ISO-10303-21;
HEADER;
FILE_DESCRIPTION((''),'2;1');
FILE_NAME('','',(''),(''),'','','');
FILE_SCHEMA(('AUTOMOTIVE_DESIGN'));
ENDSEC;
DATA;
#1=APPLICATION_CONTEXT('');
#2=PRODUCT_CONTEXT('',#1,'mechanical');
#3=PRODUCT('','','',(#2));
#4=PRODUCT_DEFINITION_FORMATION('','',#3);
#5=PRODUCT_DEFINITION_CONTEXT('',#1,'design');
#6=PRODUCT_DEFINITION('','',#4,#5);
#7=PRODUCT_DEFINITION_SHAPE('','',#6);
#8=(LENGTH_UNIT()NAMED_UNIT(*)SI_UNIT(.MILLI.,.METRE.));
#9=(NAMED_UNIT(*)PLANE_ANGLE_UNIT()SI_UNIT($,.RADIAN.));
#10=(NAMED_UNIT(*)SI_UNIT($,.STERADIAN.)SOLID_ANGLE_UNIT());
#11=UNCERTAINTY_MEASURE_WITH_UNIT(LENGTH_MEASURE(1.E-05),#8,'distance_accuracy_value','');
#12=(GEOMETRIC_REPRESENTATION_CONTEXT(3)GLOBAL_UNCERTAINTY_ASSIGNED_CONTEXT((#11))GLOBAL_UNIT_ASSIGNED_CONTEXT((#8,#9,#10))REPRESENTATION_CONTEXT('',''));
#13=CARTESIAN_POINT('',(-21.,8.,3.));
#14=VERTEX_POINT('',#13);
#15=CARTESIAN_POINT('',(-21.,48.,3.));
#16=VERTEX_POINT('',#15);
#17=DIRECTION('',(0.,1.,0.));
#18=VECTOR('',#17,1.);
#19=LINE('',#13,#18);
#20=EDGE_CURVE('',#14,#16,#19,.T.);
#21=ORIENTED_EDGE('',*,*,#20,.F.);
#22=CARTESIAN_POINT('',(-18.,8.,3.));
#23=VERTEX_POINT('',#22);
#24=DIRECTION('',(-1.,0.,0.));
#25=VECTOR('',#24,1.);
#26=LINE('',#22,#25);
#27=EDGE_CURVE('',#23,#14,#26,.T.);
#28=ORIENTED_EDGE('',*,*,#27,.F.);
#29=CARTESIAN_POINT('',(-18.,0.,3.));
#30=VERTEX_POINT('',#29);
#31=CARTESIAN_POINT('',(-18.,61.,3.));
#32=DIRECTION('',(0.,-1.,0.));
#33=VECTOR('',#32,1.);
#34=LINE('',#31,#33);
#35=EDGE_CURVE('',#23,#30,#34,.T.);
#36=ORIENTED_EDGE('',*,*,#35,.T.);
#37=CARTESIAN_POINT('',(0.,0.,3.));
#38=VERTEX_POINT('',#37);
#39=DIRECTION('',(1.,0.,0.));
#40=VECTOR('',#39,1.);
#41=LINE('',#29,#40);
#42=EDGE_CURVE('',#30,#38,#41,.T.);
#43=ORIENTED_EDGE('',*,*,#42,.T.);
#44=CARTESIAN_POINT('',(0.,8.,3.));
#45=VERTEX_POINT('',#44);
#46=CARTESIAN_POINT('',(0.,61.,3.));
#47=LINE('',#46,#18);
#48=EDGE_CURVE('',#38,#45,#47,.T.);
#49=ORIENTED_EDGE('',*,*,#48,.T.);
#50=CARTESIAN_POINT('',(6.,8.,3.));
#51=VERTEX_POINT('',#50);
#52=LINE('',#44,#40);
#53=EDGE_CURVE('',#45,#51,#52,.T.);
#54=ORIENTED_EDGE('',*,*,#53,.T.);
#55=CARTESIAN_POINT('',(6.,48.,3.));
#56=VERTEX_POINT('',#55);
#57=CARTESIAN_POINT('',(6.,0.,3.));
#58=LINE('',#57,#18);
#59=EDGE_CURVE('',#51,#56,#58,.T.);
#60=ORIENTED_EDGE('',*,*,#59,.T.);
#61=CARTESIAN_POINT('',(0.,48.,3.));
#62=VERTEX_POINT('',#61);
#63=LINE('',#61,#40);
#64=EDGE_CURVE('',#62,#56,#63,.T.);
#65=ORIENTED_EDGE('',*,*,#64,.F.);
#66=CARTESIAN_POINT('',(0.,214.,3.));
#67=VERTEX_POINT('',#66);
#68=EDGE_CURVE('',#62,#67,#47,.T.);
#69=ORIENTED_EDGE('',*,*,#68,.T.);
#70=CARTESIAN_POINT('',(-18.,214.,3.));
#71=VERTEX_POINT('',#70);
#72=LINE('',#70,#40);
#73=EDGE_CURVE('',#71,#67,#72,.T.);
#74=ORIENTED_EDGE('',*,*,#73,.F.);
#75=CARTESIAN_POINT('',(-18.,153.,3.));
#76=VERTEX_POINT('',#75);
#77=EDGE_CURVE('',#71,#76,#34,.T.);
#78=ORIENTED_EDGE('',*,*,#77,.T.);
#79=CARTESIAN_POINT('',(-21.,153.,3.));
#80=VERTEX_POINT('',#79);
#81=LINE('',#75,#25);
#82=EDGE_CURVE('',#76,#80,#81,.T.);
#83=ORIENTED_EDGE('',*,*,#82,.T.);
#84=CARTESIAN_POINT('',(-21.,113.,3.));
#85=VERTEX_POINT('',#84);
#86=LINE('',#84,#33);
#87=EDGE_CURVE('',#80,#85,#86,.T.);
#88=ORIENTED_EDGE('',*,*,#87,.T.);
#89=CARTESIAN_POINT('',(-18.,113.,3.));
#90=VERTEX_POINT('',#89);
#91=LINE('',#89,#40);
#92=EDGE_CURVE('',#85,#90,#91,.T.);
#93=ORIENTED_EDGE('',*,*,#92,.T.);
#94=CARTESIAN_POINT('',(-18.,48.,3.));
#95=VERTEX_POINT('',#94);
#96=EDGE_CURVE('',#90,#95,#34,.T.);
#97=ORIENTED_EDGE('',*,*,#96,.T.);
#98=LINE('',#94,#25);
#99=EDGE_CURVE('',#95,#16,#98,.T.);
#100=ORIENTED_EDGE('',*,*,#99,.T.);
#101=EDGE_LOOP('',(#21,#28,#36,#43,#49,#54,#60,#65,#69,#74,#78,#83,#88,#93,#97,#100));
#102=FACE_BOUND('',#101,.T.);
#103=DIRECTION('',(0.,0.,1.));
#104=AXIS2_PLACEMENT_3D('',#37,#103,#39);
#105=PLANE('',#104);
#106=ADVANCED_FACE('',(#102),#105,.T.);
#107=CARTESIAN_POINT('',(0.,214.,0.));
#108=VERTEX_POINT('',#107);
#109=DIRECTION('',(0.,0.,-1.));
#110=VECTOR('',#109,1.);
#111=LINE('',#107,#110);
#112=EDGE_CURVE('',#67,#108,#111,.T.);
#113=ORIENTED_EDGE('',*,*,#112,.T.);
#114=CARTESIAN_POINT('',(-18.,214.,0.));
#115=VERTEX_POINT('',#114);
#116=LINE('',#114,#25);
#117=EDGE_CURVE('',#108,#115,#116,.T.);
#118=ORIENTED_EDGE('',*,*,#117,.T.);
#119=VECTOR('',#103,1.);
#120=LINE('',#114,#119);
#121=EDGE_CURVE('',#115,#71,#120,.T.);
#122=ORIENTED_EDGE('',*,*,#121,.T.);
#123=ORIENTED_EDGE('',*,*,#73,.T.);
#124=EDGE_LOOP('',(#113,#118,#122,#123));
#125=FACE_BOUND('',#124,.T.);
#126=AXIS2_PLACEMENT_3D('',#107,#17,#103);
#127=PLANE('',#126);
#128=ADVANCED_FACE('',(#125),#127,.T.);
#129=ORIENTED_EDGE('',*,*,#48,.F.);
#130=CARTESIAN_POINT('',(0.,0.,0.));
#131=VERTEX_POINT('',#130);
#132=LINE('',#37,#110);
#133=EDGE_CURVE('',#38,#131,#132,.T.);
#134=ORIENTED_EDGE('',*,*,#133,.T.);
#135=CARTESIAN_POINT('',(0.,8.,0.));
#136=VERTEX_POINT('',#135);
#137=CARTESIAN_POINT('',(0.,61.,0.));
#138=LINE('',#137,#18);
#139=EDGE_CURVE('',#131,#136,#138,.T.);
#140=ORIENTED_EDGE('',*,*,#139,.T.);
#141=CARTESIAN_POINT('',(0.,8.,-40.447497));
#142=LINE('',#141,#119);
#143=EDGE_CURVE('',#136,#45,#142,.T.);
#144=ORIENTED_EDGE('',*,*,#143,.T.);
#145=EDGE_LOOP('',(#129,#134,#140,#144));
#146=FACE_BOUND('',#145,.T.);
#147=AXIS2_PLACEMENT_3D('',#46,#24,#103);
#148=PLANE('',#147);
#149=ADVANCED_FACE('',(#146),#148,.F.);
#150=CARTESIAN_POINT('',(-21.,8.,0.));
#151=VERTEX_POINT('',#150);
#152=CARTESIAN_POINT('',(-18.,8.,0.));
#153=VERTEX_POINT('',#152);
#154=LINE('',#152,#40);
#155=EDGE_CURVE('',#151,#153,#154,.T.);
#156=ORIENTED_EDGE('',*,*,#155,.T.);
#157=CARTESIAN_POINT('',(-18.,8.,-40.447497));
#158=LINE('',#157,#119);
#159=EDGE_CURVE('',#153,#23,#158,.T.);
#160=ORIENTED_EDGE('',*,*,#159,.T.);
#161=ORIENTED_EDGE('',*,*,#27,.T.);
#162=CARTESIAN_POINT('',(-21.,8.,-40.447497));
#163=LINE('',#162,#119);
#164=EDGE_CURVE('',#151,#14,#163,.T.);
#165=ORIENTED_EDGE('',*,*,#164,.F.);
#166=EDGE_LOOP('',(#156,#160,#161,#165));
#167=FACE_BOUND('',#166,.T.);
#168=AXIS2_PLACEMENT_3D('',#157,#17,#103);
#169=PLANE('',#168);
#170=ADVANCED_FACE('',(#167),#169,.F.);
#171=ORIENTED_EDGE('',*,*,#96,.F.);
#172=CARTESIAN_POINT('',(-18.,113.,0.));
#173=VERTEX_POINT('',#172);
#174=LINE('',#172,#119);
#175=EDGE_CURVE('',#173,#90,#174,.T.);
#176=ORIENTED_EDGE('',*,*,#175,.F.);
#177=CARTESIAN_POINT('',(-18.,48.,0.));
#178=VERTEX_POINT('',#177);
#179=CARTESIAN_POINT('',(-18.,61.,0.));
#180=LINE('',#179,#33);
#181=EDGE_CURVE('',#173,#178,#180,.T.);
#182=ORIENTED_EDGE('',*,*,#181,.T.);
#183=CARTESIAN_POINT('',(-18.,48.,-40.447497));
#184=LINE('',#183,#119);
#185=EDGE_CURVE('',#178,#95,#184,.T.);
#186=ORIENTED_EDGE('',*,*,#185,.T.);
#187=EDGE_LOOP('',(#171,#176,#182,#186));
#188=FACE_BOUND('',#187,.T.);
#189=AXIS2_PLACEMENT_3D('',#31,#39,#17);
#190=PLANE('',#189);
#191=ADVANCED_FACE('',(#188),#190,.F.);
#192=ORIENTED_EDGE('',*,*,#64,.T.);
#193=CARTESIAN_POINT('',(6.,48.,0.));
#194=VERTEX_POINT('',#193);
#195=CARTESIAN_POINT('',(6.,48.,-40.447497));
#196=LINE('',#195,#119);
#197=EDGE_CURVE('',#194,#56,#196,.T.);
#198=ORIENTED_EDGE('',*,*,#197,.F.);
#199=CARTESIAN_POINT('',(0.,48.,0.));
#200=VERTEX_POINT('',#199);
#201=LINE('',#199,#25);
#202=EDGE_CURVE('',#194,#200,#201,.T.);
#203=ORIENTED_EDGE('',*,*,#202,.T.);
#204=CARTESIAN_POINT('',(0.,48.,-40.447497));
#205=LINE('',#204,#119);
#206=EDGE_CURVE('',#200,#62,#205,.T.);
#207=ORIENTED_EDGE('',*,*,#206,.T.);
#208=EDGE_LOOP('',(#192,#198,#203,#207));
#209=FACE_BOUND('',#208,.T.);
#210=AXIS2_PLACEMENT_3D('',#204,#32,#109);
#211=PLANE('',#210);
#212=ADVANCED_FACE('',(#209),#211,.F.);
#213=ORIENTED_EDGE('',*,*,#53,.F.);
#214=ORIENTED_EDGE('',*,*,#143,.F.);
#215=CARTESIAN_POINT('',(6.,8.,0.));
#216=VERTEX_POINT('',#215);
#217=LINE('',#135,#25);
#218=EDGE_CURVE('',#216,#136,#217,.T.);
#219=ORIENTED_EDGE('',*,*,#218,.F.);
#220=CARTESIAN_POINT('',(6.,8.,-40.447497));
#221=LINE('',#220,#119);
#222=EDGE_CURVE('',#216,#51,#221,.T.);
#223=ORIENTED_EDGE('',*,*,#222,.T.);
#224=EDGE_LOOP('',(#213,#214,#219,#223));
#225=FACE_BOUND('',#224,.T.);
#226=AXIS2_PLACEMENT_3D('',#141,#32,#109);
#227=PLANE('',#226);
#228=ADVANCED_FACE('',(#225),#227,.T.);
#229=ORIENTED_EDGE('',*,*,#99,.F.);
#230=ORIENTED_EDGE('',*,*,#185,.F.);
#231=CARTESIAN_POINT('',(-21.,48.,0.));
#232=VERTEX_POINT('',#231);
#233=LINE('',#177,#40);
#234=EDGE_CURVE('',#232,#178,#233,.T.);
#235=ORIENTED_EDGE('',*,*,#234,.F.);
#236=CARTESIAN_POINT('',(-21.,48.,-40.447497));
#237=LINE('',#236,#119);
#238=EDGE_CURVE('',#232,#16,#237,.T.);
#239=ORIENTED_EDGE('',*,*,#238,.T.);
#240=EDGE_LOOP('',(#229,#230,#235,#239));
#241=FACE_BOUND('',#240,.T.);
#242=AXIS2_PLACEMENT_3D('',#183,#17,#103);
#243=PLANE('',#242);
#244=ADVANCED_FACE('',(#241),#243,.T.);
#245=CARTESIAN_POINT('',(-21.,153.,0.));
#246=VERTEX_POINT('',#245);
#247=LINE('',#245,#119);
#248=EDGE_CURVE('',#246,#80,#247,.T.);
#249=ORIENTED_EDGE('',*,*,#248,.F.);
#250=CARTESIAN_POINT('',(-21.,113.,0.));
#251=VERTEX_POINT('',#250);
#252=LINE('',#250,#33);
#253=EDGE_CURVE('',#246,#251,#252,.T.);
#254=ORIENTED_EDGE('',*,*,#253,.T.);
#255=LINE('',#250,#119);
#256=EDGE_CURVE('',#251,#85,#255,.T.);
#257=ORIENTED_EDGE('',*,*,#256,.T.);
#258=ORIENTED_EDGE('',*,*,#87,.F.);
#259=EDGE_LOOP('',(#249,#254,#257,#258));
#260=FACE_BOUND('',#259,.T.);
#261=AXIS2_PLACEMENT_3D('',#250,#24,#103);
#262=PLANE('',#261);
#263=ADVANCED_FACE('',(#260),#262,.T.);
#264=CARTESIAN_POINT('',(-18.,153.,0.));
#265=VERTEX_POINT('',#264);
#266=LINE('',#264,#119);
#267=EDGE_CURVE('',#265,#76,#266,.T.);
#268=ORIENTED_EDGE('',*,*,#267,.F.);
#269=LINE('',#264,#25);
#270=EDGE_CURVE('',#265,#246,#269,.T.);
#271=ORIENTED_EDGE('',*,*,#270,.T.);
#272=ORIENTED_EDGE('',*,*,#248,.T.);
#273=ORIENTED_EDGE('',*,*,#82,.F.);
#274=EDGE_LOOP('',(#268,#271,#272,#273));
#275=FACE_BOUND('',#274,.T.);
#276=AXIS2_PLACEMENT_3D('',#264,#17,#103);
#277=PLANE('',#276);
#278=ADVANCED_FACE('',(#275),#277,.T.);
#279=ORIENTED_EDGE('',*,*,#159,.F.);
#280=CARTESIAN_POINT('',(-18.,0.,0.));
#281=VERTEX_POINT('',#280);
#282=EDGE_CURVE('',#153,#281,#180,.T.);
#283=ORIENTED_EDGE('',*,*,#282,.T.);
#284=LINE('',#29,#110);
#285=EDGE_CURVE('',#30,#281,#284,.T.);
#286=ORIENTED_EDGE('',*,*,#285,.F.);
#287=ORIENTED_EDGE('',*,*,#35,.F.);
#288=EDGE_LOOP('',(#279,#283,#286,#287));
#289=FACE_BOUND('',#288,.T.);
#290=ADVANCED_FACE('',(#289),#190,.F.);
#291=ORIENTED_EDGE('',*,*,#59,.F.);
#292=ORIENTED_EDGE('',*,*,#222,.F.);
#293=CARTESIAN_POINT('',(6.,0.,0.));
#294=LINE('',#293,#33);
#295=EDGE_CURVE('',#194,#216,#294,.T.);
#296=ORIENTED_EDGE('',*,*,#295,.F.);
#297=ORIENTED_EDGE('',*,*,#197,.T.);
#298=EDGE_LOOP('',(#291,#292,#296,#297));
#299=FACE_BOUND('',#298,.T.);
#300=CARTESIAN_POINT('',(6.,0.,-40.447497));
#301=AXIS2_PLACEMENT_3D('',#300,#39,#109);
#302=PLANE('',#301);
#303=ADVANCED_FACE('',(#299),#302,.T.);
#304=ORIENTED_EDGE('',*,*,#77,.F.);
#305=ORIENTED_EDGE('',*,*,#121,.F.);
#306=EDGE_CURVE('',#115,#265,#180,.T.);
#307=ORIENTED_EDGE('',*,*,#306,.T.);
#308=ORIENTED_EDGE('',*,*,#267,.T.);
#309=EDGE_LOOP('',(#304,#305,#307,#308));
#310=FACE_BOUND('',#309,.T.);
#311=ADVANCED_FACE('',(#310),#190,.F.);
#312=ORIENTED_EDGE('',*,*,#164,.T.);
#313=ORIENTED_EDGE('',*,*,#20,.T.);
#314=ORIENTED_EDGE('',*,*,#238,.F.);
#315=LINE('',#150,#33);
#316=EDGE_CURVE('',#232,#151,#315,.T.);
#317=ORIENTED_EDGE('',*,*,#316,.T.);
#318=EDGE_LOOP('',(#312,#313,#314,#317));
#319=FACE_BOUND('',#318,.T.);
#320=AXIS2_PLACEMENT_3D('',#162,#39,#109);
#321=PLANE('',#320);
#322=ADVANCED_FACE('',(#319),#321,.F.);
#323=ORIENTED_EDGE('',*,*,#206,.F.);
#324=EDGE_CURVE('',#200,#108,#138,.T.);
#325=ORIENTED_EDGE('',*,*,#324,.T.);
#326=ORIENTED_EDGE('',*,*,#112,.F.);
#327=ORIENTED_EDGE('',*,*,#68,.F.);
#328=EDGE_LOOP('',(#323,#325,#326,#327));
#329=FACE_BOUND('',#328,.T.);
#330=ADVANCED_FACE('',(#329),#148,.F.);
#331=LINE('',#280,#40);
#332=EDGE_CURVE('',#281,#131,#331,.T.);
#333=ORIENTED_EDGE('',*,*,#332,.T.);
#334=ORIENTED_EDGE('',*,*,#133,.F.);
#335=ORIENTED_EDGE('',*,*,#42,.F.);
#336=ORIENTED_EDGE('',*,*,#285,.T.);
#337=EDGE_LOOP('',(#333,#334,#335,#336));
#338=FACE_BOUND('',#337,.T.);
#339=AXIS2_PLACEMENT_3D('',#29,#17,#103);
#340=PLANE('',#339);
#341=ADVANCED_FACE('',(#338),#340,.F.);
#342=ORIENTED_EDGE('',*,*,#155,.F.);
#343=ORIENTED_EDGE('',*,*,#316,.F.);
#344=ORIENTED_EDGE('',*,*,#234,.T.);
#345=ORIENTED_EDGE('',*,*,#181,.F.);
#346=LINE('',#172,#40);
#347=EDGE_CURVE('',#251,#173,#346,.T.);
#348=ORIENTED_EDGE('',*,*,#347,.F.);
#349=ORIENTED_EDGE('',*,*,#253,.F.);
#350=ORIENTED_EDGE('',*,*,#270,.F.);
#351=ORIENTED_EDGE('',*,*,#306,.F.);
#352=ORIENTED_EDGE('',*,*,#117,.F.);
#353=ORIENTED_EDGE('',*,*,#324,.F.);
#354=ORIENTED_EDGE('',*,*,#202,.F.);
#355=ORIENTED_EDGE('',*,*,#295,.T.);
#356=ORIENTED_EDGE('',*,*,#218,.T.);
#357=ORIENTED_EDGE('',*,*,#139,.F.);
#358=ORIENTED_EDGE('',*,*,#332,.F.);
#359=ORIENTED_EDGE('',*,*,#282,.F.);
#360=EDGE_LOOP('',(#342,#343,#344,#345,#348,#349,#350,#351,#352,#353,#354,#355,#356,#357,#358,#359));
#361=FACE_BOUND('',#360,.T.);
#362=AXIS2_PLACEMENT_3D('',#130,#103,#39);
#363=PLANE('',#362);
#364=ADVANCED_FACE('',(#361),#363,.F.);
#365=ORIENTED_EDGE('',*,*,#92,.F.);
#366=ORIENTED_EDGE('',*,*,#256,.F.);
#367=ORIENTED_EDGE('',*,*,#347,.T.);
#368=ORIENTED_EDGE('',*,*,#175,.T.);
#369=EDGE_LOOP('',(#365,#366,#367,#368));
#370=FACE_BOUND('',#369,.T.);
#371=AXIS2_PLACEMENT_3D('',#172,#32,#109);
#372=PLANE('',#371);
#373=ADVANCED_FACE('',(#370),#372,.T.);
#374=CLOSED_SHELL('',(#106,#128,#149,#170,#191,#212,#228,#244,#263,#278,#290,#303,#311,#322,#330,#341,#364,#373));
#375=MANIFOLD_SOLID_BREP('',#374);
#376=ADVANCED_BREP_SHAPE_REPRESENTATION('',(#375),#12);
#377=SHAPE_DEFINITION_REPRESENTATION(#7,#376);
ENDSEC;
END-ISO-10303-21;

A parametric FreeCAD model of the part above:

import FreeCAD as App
import Part
import Sketcher
from FreeCAD import Vector


def add_polygon(sketch, points):
    """Adds a closed chain of lines whose ends are joined by coincident constraints."""
    first, n = sketch.GeometryCount, len(points)
    for a, b in zip(points, points[1:] + points[:1]):
        sketch.addGeometry(Part.LineSegment(App.Vector(*a, 0), App.Vector(*b, 0)), False)
    for i in range(n):
        sketch.addConstraint(Sketcher.Constraint("Coincident", first + i, 2, first + (i + 1) % n, 1))

doc = App.newDocument("Part")
params = doc.addObject("Spreadsheet::Sheet", "Params")
for row, (alias, value) in enumerate([
    ("sketch1_width", "18 mm"),
    ("sketch1_height", "61 mm"),
    ("pad1_length", "3 mm"),
    ("sketch2_width", "6 mm"),
    ("sketch2_width2", "3 mm"),
    ("sketch2_height", "40 mm"),
    ("pad2_length", "3 mm"),
    ("sketch3_width", "18 mm"),
    ("sketch3_height", "3 mm"),
    ("pad3_length", "153 mm"),
    ("sketch4_width", "3 mm"),
    ("sketch4_height", "40 mm"),
    ("pad4_length", "3 mm"),
], start=1):
    params.set(f"A{row}", alias)
    params.set(f"B{row}", "=" + value)
    params.setAlias(f"B{row}", alias)

body = doc.addObject("PartDesign::Body", "Body")

sketch1 = body.newObject("Sketcher::SketchObject", "Sketch")
sketch1.AttachmentSupport = (doc.getObject("XY_Plane"), [""])
sketch1.MapMode = "FlatFace"
add_polygon(sketch1, [(-18, 61), (-18, 0), (0, 0), (0, 61)])
sketch1.addConstraint(Sketcher.Constraint("Vertical", 0))
sketch1.addConstraint(Sketcher.Constraint("Horizontal", 1))
sketch1.addConstraint(Sketcher.Constraint("Vertical", 2))
sketch1.addConstraint(Sketcher.Constraint("Horizontal", 3))
sketch1.addConstraint(Sketcher.Constraint("Coincident", 1, 2, -1, 1))
sketch1.addConstraint(Sketcher.Constraint("DistanceX", 1, 1, 1, 2, 18.0))
sketch1.addConstraint(Sketcher.Constraint("DistanceY", 0, 2, 0, 1, 61.0))
sketch1.setExpression("Constraints[9]", "Params.sketch1_width")
sketch1.setExpression("Constraints[10]", "Params.sketch1_height")
pad1 = body.newObject("PartDesign::Pad", "Pad")
pad1.Profile = sketch1
pad1.setExpression("Length", "Params.pad1_length")

sketch2 = body.newObject("Sketcher::SketchObject", "Sketch001")
sketch2.AttachmentSupport = (doc.getObject("XY_Plane"), [""])
sketch2.MapMode = "FlatFace"
sketch2.AttachmentOffset = App.Placement(Vector(0, 0, 3), App.Rotation())
add_polygon(sketch2, [(0, 48), (0, 8), (6, 8), (6, 48)])
add_polygon(sketch2, [(-21, 48), (-21, 8), (-18, 8), (-18, 48)])
sketch2.addConstraint(Sketcher.Constraint("Vertical", 0))
sketch2.addConstraint(Sketcher.Constraint("Horizontal", 1))
sketch2.addConstraint(Sketcher.Constraint("Vertical", 2))
sketch2.addConstraint(Sketcher.Constraint("Horizontal", 3))
sketch2.addConstraint(Sketcher.Constraint("Vertical", 4))
sketch2.addConstraint(Sketcher.Constraint("Horizontal", 5))
sketch2.addConstraint(Sketcher.Constraint("Vertical", 6))
sketch2.addConstraint(Sketcher.Constraint("Horizontal", 7))
sketch2.addConstraint(Sketcher.Constraint("PointOnObject", 0, 2, -2))
sketch2.addConstraint(Sketcher.Constraint("Horizontal", 1, 2, 4, 2))
sketch2.addConstraint(Sketcher.Constraint("Horizontal", 3, 2, 6, 2))
sketch2.addConstraint(Sketcher.Constraint("DistanceX", 1, 1, 1, 2, 6.0))
sketch2.addConstraint(Sketcher.Constraint("DistanceX", 5, 1, 5, 2, 3.0))
sketch2.addConstraint(Sketcher.Constraint("DistanceY", 0, 2, 0, 1, 40.0))
sketch2.addConstraint(Sketcher.Constraint("DistanceY", -1, 1, 0, 2, 8.0))
sketch2.addConstraint(Sketcher.Constraint("DistanceX", 4, 2, -1, 1, 21.0))
sketch2.setExpression("Constraints[19]", "Params.sketch2_width")
sketch2.setExpression("Constraints[20]", "Params.sketch2_width2")
sketch2.setExpression("Constraints[21]", "Params.sketch2_height")
pad2 = body.newObject("PartDesign::Pad", "Pad001")
pad2.Profile = sketch2
pad2.setExpression("Length", "Params.pad2_length")
pad2.Reversed = True

sketch3 = body.newObject("Sketcher::SketchObject", "Sketch002")
sketch3.AttachmentSupport = (doc.getObject("XZ_Plane"), [""])
sketch3.MapMode = "FlatFace"
sketch3.AttachmentOffset = App.Placement(Vector(0, 0, -61), App.Rotation())
add_polygon(sketch3, [(-18, 0), (-18, 3), (0, 3), (0, 0)])
sketch3.addConstraint(Sketcher.Constraint("Vertical", 0))
sketch3.addConstraint(Sketcher.Constraint("Horizontal", 1))
sketch3.addConstraint(Sketcher.Constraint("Vertical", 2))
sketch3.addConstraint(Sketcher.Constraint("Horizontal", 3))
sketch3.addConstraint(Sketcher.Constraint("Coincident", 2, 2, -1, 1))
sketch3.addConstraint(Sketcher.Constraint("DistanceX", 1, 1, 1, 2, 18.0))
sketch3.addConstraint(Sketcher.Constraint("DistanceY", 0, 1, 0, 2, 3.0))
sketch3.setExpression("Constraints[9]", "Params.sketch3_width")
sketch3.setExpression("Constraints[10]", "Params.sketch3_height")
pad3 = body.newObject("PartDesign::Pad", "Pad002")
pad3.Profile = sketch3
pad3.setExpression("Length", "Params.pad3_length")
pad3.Reversed = True

sketch4 = body.newObject("Sketcher::SketchObject", "Sketch003")
sketch4.AttachmentSupport = (doc.getObject("XY_Plane"), [""])
sketch4.MapMode = "FlatFace"
sketch4.AttachmentOffset = App.Placement(Vector(0, 0, 3), App.Rotation())
add_polygon(sketch4, [(-21, 153), (-21, 113), (-18, 113), (-18, 153)])
sketch4.addConstraint(Sketcher.Constraint("Vertical", 0))
sketch4.addConstraint(Sketcher.Constraint("Horizontal", 1))
sketch4.addConstraint(Sketcher.Constraint("Vertical", 2))
sketch4.addConstraint(Sketcher.Constraint("Horizontal", 3))
sketch4.addConstraint(Sketcher.Constraint("DistanceX", 1, 1, 1, 2, 3.0))
sketch4.addConstraint(Sketcher.Constraint("DistanceY", 0, 2, 0, 1, 40.0))
sketch4.addConstraint(Sketcher.Constraint("DistanceX", 0, 2, -1, 1, 21.0))
sketch4.addConstraint(Sketcher.Constraint("DistanceY", -1, 1, 0, 2, 113.0))
sketch4.setExpression("Constraints[8]", "Params.sketch4_width")
sketch4.setExpression("Constraints[9]", "Params.sketch4_height")
pad4 = body.newObject("PartDesign::Pad", "Pad003")
pad4.Profile = sketch4
pad4.setExpression("Length", "Params.pad4_length")
pad4.Reversed = True

doc.recompute()
